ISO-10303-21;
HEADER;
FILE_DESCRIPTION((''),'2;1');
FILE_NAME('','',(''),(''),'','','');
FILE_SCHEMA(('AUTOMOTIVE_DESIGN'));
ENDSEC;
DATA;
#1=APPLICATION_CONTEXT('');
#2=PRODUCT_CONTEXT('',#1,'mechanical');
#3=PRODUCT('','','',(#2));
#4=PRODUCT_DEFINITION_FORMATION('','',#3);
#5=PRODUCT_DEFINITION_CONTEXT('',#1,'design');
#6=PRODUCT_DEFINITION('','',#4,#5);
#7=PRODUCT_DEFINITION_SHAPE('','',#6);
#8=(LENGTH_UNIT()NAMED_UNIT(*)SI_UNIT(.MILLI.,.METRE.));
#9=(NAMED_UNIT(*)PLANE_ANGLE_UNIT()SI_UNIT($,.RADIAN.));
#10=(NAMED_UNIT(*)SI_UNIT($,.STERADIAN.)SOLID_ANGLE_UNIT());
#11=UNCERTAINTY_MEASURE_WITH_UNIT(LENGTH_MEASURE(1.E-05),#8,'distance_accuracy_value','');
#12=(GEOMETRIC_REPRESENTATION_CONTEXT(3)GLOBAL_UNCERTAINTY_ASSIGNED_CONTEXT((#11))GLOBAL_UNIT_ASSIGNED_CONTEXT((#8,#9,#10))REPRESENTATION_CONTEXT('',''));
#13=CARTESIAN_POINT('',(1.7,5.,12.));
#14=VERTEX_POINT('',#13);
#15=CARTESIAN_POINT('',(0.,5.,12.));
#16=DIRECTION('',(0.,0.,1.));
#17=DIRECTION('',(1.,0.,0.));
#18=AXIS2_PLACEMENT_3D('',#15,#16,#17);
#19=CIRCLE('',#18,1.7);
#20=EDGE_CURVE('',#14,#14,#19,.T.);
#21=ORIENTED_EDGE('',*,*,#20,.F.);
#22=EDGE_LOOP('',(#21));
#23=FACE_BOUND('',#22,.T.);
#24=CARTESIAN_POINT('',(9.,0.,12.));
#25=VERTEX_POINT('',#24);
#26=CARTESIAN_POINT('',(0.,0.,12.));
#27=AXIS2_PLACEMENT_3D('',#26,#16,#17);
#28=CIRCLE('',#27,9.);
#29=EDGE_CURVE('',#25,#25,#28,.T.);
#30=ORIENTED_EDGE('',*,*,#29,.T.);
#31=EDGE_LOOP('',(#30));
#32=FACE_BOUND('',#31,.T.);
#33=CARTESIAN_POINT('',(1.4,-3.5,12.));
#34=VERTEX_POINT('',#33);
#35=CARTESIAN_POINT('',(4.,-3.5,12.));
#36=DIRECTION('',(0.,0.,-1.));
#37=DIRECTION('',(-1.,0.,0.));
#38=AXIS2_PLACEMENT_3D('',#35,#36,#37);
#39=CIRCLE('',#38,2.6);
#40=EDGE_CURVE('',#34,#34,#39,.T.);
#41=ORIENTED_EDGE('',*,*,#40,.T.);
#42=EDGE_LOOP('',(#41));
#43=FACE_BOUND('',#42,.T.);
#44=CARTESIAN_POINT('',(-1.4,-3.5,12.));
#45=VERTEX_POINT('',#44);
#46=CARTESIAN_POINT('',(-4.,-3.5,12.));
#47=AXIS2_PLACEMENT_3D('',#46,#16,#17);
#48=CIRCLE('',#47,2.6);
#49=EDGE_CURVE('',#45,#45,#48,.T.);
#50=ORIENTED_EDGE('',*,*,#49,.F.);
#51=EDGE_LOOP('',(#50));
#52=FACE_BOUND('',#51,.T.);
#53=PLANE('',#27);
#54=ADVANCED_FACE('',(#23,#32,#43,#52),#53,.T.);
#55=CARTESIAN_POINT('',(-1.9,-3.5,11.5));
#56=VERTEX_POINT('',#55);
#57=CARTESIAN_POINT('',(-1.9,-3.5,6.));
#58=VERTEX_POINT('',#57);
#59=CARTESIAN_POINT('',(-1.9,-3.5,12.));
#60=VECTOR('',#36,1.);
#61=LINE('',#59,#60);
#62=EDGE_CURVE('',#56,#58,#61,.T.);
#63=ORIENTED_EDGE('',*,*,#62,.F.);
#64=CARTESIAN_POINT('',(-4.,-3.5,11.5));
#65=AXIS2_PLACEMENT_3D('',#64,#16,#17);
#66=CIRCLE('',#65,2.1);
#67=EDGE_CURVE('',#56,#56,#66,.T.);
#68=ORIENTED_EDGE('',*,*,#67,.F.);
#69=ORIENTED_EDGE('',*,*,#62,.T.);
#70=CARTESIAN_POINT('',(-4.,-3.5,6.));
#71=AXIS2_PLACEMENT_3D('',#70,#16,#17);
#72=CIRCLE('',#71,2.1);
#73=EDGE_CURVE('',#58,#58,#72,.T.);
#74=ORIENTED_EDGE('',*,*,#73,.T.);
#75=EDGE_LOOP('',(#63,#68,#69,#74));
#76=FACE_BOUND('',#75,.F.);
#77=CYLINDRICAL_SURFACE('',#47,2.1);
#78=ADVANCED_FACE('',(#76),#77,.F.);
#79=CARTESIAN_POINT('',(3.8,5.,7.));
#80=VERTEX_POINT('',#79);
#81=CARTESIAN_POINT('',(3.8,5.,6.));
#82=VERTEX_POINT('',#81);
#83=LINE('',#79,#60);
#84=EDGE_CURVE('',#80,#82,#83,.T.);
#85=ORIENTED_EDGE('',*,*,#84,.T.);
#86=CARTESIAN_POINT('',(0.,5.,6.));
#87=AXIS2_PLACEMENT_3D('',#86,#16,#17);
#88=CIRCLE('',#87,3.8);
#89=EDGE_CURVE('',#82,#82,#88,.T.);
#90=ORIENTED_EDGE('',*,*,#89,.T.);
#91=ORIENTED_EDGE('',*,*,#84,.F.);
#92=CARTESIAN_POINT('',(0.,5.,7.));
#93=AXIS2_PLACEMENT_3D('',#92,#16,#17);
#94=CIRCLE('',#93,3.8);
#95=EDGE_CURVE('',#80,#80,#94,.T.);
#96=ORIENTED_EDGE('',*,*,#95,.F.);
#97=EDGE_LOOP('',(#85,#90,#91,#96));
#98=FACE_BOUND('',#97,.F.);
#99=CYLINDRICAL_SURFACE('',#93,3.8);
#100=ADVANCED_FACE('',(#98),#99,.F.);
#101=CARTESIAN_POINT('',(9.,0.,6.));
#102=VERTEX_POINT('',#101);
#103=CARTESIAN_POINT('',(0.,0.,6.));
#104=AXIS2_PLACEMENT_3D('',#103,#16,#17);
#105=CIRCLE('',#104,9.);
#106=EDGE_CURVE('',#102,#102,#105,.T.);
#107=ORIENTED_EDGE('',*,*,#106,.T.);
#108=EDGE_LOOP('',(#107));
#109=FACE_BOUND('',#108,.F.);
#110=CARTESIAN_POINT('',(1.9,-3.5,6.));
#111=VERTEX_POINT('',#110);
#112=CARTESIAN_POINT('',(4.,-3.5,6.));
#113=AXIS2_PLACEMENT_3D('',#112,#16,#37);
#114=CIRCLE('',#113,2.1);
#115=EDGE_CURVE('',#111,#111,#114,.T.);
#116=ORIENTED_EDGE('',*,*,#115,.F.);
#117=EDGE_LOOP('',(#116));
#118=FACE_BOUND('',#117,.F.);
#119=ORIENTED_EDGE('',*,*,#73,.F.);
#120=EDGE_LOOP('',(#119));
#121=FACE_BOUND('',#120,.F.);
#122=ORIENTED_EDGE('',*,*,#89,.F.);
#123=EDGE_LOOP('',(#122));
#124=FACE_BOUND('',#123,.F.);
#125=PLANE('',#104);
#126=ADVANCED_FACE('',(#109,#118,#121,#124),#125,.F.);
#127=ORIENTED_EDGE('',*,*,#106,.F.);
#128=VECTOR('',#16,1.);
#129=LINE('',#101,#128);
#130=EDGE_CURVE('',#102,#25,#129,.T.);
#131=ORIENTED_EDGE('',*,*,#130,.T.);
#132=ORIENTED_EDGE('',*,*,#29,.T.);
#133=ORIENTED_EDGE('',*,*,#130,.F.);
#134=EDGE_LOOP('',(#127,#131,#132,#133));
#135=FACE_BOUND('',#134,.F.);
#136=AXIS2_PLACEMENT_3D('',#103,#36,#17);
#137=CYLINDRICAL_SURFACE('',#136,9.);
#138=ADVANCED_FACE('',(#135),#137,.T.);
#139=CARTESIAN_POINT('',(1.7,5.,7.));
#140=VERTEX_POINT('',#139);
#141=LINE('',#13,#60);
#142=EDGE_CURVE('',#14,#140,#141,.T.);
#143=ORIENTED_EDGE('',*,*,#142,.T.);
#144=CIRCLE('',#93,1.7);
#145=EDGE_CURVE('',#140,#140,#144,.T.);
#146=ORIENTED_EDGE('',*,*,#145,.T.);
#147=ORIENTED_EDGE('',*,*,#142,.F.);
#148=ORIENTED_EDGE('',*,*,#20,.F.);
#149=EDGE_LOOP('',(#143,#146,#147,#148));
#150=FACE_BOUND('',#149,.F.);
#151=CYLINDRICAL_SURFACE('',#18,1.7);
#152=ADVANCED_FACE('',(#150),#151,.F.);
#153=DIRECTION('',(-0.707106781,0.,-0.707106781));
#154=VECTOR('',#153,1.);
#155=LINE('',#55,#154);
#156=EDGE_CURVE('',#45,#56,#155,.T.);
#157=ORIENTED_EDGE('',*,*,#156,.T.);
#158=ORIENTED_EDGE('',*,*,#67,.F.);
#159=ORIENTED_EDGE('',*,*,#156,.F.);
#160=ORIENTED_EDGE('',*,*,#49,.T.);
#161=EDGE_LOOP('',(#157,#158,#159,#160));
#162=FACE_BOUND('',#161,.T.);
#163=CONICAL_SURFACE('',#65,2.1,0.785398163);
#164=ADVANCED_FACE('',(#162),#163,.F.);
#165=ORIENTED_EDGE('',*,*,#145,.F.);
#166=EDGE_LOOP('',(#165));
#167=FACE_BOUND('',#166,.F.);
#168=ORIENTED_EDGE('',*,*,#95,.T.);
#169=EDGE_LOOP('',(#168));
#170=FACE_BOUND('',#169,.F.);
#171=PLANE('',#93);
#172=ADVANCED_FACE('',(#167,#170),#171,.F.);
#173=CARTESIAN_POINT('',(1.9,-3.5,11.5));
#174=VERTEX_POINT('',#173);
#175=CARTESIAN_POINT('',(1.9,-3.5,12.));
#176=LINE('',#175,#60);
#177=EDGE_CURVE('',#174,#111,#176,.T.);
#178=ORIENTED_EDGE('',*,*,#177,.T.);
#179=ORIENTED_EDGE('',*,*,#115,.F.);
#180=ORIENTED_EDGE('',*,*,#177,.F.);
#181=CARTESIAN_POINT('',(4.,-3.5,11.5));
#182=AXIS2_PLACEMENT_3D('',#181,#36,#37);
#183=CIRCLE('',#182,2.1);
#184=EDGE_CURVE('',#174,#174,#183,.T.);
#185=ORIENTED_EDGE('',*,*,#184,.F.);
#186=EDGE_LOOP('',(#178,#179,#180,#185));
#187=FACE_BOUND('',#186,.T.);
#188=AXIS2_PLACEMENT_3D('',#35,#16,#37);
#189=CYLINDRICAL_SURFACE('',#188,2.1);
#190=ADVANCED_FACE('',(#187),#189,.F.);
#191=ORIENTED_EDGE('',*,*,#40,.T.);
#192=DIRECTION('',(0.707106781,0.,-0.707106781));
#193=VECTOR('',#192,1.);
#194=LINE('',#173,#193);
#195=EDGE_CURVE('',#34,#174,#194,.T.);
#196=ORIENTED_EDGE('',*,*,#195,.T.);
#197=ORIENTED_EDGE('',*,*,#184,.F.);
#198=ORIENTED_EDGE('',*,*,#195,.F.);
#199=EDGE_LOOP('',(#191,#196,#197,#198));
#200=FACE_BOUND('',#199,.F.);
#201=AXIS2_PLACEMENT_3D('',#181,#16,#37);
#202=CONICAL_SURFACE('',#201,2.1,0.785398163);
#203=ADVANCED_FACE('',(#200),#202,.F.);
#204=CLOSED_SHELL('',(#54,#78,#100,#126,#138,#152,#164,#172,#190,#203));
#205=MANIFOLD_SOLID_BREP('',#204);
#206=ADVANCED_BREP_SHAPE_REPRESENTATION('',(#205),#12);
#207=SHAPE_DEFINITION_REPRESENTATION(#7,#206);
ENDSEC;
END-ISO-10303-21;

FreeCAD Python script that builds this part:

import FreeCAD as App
import Part
import Sketcher
Q = App.Units.Quantity


def edges_at(feature, points):
    """Names of the edges that pass closest to the given points."""
    edges = feature.Shape.Edges
    near = lambda p: min(range(len(edges)), key=lambda i: edges[i].distToShape(Part.Vertex(*p))[0])
    return sorted({f"Edge{near(p) + 1}" for p in points})

doc = App.newDocument("Part")
body = doc.addObject("PartDesign::Body", "Body")

# Sketch on XY plane
sketch1 = body.newObject("Sketcher::SketchObject", "Sketch")
sketch1.AttachmentSupport = (doc.getObject("XY_Plane"), [""])
sketch1.MapMode = "FlatFace"
sketch1.AttachmentOffset = App.Placement(App.Vector(0, 0, 6), App.Rotation())
sketch1.addGeometry(Part.Circle(App.Vector(0, 0, 0), App.Vector(0, 0, 1), 9), False)
sketch1.addConstraint([
    Sketcher.Constraint("Coincident", 0, 3, -1, 1),
    Sketcher.Constraint("Diameter", 0, Q("18 mm")),
])
pad1 = body.newObject("PartDesign::Pad", "Pad")
pad1.Profile = sketch1
pad1.Length = 6

# Sketch on XY plane
sketch2 = body.newObject("Sketcher::SketchObject", "Sketch001")
sketch2.AttachmentSupport = (doc.getObject("XY_Plane"), [""])
sketch2.MapMode = "FlatFace"
sketch2.AttachmentOffset = App.Placement(App.Vector(0, 0, 12), App.Rotation())
sketch2.addGeometry(Part.Circle(App.Vector(0, 5, 0), App.Vector(0, 0, 1), 1.7), False)
sketch2.addConstraint([
    Sketcher.Constraint("PointOnObject", 0, 3, -2),
    Sketcher.Constraint("Diameter", 0, Q("3.4 mm")),
    Sketcher.Constraint("DistanceY", -1, 1, 0, 3, Q("5 mm")),
])
pocket1 = body.newObject("PartDesign::Pocket", "Pocket")
pocket1.Profile = sketch2
pocket1.Type = "ThroughAll"

# Sketch on XY plane
sketch3 = body.newObject("Sketcher::SketchObject", "Sketch002")
sketch3.AttachmentSupport = (doc.getObject("XY_Plane"), [""])
sketch3.MapMode = "FlatFace"
sketch3.AttachmentOffset = App.Placement(App.Vector(0, 0, 7), App.Rotation())
sketch3.addGeometry(Part.Circle(App.Vector(0, 5, 0), App.Vector(0, 0, 1), 3.8), False)
sketch3.addConstraint([
    Sketcher.Constraint("PointOnObject", 0, 3, -2),
    Sketcher.Constraint("Diameter", 0, Q("7.6 mm")),
    Sketcher.Constraint("DistanceY", -1, 1, 0, 3, Q("5 mm")),
])
pocket2 = body.newObject("PartDesign::Pocket", "Pocket001")
pocket2.Profile = sketch3
pocket2.Length = 95

# Sketch on XY plane
sketch4 = body.newObject("Sketcher::SketchObject", "Sketch003")
sketch4.AttachmentSupport = (doc.getObject("XY_Plane"), [""])
sketch4.MapMode = "FlatFace"
sketch4.AttachmentOffset = App.Placement(App.Vector(0, 0, 12), App.Rotation())
sketch4.addGeometry(Part.Circle(App.Vector(-4, -3.5, 0), App.Vector(0, 0, 1), 2.1), False)
sketch4.addConstraint([
    Sketcher.Constraint("Diameter", 0, Q("4.2 mm")),
    Sketcher.Constraint("DistanceX", 0, 3, -1, 1, Q("4 mm")),
    Sketcher.Constraint("DistanceY", 0, 3, -1, 1, Q("3.5 mm")),
])
pocket3 = body.newObject("PartDesign::Pocket", "Pocket002")
pocket3.Profile = sketch4
pocket3.Type = "ThroughAll"
doc.recompute()

mirrored = body.newObject("PartDesign::Mirrored", "Mirrored")
mirrored.Originals = [pocket3]
mirrored.MirrorPlane = (doc.getObject("YZ_Plane"), [""])
body.Tip = mirrored
doc.recompute()

chamfer = body.newObject("PartDesign::Chamfer", "Chamfer")
chamfer.Base = (mirrored, edges_at(mirrored, [(6.1, -3.5, 12), (-6.1, -3.5, 12)]))
chamfer.Size = 0.5

doc.recompute()
